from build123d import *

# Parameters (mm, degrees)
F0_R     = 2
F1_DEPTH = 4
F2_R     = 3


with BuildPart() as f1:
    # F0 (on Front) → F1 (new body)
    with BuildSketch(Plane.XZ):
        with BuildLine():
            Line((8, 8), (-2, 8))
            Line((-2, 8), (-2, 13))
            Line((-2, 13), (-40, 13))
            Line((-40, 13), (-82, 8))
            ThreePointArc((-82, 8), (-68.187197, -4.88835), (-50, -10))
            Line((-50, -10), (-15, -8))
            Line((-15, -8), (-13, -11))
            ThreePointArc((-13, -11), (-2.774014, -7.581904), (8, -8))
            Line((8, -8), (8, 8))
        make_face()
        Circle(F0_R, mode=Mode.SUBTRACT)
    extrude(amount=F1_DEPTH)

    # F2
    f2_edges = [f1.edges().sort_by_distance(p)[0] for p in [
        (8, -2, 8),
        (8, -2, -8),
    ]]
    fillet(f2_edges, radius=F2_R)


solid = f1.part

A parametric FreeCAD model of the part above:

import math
import FreeCAD as App
import Part
import Sketcher
Q = App.Units.Quantity


def edges_at(feature, points):
    """Names of the edges that pass closest to the given points."""
    edges = feature.Shape.Edges
    near = lambda p: min(range(len(edges)), key=lambda i: edges[i].distToShape(Part.Vertex(*p))[0])
    return sorted({f"Edge{near(p) + 1}" for p in points})

doc = App.newDocument("Part")
body = doc.addObject("PartDesign::Body", "Body")

sketch1 = body.newObject("Sketcher::SketchObject", "Sketch")
sketch1.AttachmentSupport = (doc.getObject("XZ_Plane"), [""])
sketch1.MapMode = "FlatFace"
sketch1.addGeometry(Part.LineSegment(App.Vector(8, 8, 0), App.Vector(-2, 8, 0)), False)
sketch1.addGeometry(Part.LineSegment(App.Vector(-2, 8, 0), App.Vector(-2, 13, 0)), False)
sketch1.addGeometry(Part.LineSegment(App.Vector(-2, 13, 0), App.Vector(-40, 13, 0)), False)
sketch1.addGeometry(Part.LineSegment(App.Vector(-40, 13, 0), App.Vector(-82, 8, 0)), False)
sketch1.addGeometry(Part.ArcOfCircle(Part.Circle(App.Vector(-48.576747, 29.974672, 0), App.Vector(0, 0, 1), 40), math.radians(-146.676417), math.radians(-92.03909)), False)
sketch1.addGeometry(Part.LineSegment(App.Vector(-50, -10, 0), App.Vector(-15, -8, 0)), False)
sketch1.addGeometry(Part.LineSegment(App.Vector(-15, -8, 0), App.Vector(-13, -11, 0)), False)
sketch1.addGeometry(Part.ArcOfCircle(Part.Circle(App.Vector(1.468627, -37.280389, 0), App.Vector(0, 0, 1), 30), math.radians(77.425291), math.radians(118.834913)), False)
sketch1.addGeometry(Part.LineSegment(App.Vector(8, -8, 0), App.Vector(8, 8, 0)), False)
sketch1.addGeometry(Part.Circle(App.Vector(0, 0, 0), App.Vector(0, 0, 1), 2), False)
sketch1.addConstraint(Sketcher.Constraint("Coincident", 0, 2, 1, 1))
sketch1.addConstraint(Sketcher.Constraint("Coincident", 1, 2, 2, 1))
sketch1.addConstraint(Sketcher.Constraint("Coincident", 2, 2, 3, 1))
sketch1.addConstraint(Sketcher.Constraint("Coincident", 3, 2, 4, 1))
sketch1.addConstraint(Sketcher.Constraint("Coincident", 4, 2, 5, 1))
sketch1.addConstraint(Sketcher.Constraint("Coincident", 5, 2, 6, 1))
sketch1.addConstraint(Sketcher.Constraint("Coincident", 6, 2, 7, 2))
sketch1.addConstraint(Sketcher.Constraint("Coincident", 7, 1, 8, 1))
sketch1.addConstraint(Sketcher.Constraint("Coincident", 8, 2, 0, 1))
sketch1.addConstraint(Sketcher.Constraint("Horizontal", 0))
sketch1.addConstraint(Sketcher.Constraint("Vertical", 1))
sketch1.addConstraint(Sketcher.Constraint("Horizontal", 2))
sketch1.addConstraint(Sketcher.Constraint("Vertical", 8))
sketch1.addConstraint(Sketcher.Constraint("Coincident", 9, 3, -1, 1))
sketch1.addConstraint(Sketcher.Constraint("Horizontal", 0, 2, 3, 2))
sketch1.addConstraint(Sketcher.Constraint("Horizontal", 5, 2, 7, 1))
sketch1.addConstraint(Sketcher.Constraint("Diameter", 9, Q("4 mm")))
sketch1.addConstraint(Sketcher.Constraint("Radius", 4, Q("40 mm")))
sketch1.addConstraint(Sketcher.Constraint("Radius", 7, Q("30 mm")))
sketch1.addConstraint(Sketcher.Constraint("DistanceX", 0, 2, 0, 1, Q("10 mm")))
sketch1.addConstraint(Sketcher.Constraint("DistanceX", 2, 2, 2, 1, Q("38 mm")))
sketch1.addConstraint(Sketcher.Constraint("DistanceY", 1, 1, 1, 2, Q("5 mm")))
sketch1.addConstraint(Sketcher.Constraint("DistanceY", 8, 1, 8, 2, Q("16 mm")))
sketch1.addConstraint(Sketcher.Constraint("DistanceX", 0, 2, -1, 1, Q("2 mm")))
sketch1.addConstraint(Sketcher.Constraint("DistanceY", -1, 1, 0, 2, Q("8 mm")))
sketch1.addConstraint(Sketcher.Constraint("DistanceX", 3, 2, -1, 1, Q("82 mm")))
sketch1.addConstraint(Sketcher.Constraint("DistanceX", 4, 2, -1, 1, Q("50 mm")))
sketch1.addConstraint(Sketcher.Constraint("DistanceY", 4, 2, -1, 1, Q("10 mm")))
sketch1.addConstraint(Sketcher.Constraint("DistanceX", 5, 2, -1, 1, Q("15 mm")))
sketch1.addConstraint(Sketcher.Constraint("DistanceX", 6, 2, -1, 1, Q("13 mm")))
sketch1.addConstraint(Sketcher.Constraint("DistanceY", 6, 2, -1, 1, Q("11 mm")))
pad1 = body.newObject("PartDesign::Pad", "Pad")
pad1.Profile = sketch1
pad1.Length = 4
doc.recompute()

fillet = body.newObject("PartDesign::Fillet", "Fillet")
fillet.Base = (pad1, edges_at(pad1, [(8, -2, 8), (8, -2, -8)]))
fillet.Radius = 3

doc.recompute()
